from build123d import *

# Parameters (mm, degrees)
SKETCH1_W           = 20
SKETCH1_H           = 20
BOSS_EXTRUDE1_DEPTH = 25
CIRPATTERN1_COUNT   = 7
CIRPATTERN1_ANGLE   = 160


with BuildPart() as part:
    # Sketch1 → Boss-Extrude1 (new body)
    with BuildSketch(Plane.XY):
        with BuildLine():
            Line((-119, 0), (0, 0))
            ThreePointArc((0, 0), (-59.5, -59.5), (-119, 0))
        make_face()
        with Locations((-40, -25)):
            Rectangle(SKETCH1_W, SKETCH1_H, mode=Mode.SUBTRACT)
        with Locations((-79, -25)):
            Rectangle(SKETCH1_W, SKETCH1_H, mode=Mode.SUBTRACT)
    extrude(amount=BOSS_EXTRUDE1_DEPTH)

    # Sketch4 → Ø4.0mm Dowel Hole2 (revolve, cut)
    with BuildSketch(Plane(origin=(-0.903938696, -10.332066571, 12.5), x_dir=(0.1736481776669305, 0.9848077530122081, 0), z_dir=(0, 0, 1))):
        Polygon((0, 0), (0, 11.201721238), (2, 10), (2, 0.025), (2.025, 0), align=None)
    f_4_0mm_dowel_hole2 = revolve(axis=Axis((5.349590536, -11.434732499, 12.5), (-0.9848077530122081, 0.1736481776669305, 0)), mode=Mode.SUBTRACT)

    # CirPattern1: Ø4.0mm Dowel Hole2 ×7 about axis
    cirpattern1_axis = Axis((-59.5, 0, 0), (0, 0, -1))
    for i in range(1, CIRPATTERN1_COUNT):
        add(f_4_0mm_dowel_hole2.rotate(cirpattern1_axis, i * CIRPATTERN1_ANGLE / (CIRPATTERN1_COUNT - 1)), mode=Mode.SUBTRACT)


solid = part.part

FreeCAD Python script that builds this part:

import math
import FreeCAD as App
import Part
import Sketcher
Q = App.Units.Quantity


def add_polygon(sketch, points):
    """Adds a closed chain of lines whose ends are joined by coincident constraints."""
    first, n = sketch.GeometryCount, len(points)
    for a, b in zip(points, points[1:] + points[:1]):
        sketch.addGeometry(Part.LineSegment(App.Vector(*a, 0), App.Vector(*b, 0)), False)
    for i in range(n):
        sketch.addConstraint(Sketcher.Constraint("Coincident", first + i, 2, first + (i + 1) % n, 1))

doc = App.newDocument("Part")
params = doc.addObject("Spreadsheet::Sheet", "Params")
for row, (alias, value) in enumerate([
    ("sketch1_radius", "59.5 mm"),
    ("sketch1_width", "20 mm"),
    ("pad1_length", "25 mm"),
    ("groove_angle", "360 deg"),
], start=1):
    params.set(f"A{row}", alias)
    params.set(f"B{row}", "=" + value)
    params.setAlias(f"B{row}", alias)

body = doc.addObject("PartDesign::Body", "Body")

# Sketch on XY plane
sketch1 = body.newObject("Sketcher::SketchObject", "Sketch")
sketch1.AttachmentSupport = (doc.getObject("XY_Plane"), [""])
sketch1.MapMode = "FlatFace"
sketch1.addGeometry(Part.LineSegment(App.Vector(0, 0, 0), App.Vector(-119, 0, 0)), False)  # 0
sketch1.addGeometry(Part.ArcOfCircle(Part.Circle(App.Vector(-60, 0, 0), App.Vector(0, 0, 1), 60), math.radians(180), math.radians(360)), False)  # 1
add_polygon(sketch1, [(-50, -35), (-50, -15), (-30, -15), (-30, -35)])  # lines 2-5
add_polygon(sketch1, [(-89, -35), (-89, -15), (-69, -15), (-69, -35)])  # lines 6-9
sketch1.addConstraint([
    Sketcher.Constraint("Coincident", 0, 1, 1, 2),
    Sketcher.Constraint("Coincident", 1, 1, 0, 2),
    Sketcher.Constraint("Horizontal", 0),
    Sketcher.Constraint("Vertical", 2),
    Sketcher.Constraint("Horizontal", 3),
    Sketcher.Constraint("Vertical", 4),
    Sketcher.Constraint("Horizontal", 5),
    Sketcher.Constraint("Vertical", 6),
    Sketcher.Constraint("Horizontal", 7),
    Sketcher.Constraint("Vertical", 8),
    Sketcher.Constraint("Horizontal", 9),
    Sketcher.Constraint("Coincident", 0, 1, -1, 1),
    Sketcher.Constraint("PointOnObject", 1, 3, -1),
    Sketcher.Constraint("Horizontal", 3, 2, 6, 2),
    Sketcher.Constraint("Horizontal", 5, 2, 8, 2),
    Sketcher.Constraint("Equal", 5, 7),
    Sketcher.Constraint("Equal", 9, 2),
    Sketcher.Constraint("Radius", 1, Q("59.5 mm")),
    Sketcher.Constraint("DistanceX", 3, 1, 3, 2, Q("20 mm")),
    Sketcher.Constraint("DistanceX", 2, 2, -1, 1, Q("50 mm")),
    Sketcher.Constraint("DistanceY", 2, 2, -1, 1, Q("15 mm")),
    Sketcher.Constraint("DistanceX", 6, 2, -1, 1, Q("89 mm")),
])
sketch1.setExpression("Constraints[25]", "Params.sketch1_radius")
sketch1.setExpression("Constraints[26]", "Params.sketch1_width")
pad1 = body.newObject("PartDesign::Pad", "Pad")
pad1.Profile = sketch1
pad1.setExpression("Length", "Params.pad1_length")

# Sketch on XY plane
sketch2 = body.newObject("Sketcher::SketchObject", "Sketch001")
sketch2.AttachmentSupport = (doc.getObject("XY_Plane"), [""])
sketch2.MapMode = "FlatFace"
sketch2.AttachmentOffset = App.Placement(App.Vector(0, 0, 12.5), App.Rotation())
add_polygon(sketch2, [(-11.935, -8.387), (-0.904, -10.332), (-0.552, -8.338), (-0.581, -8.358), (-10.405, -6.626)])  # lines 0-4
sketch2.addGeometry(Part.LineSegment(App.Vector(-0.904, -10.332, 0), App.Vector(-11.935, -8.387, 0)), True)  # axis
sketch2.addConstraint([
    Sketcher.Constraint("Coincident", 5, 1, 0, 2),
    Sketcher.Constraint("Coincident", 5, 2, 4, 2),
    Sketcher.Constraint("Perpendicular", 0, 1),
    Sketcher.Constraint("Perpendicular", 1, 3),
    Sketcher.Constraint("Angle", 0, Q("-10 deg")),
    Sketcher.Constraint("Angle", 2, Q("-144.999999 deg")),
    Sketcher.Constraint("Angle", 4, Q("-131 deg")),
    Sketcher.Constraint("Distance", 1, Q("2.025 mm")),
    Sketcher.Constraint("Distance", 3, Q("9.975 mm")),
    Sketcher.Constraint("DistanceX", 1, 2, -1, 1, Q("0.552301 mm")),
    Sketcher.Constraint("DistanceY", 4, 2, 2, 2, Q("0.028798 mm")),
    Sketcher.Constraint("DistanceY", 1, 2, -1, 1, Q("8.337831 mm")),
])
groove = body.newObject("PartDesign::Groove", "Groove")
groove.Profile = sketch2
groove.ReferenceAxis = (sketch2, ["Axis0"])
groove.setExpression("Angle", "Params.groove_angle")
doc.recompute()

datumline = body.newObject("PartDesign::Line", "DatumLine")
datumline.Placement = App.Placement(App.Vector(-59.5, 0, 0), App.Rotation(App.Vector(0, 0, 1), App.Vector(0, 0, -1)))
polarpattern = body.newObject("PartDesign::PolarPattern", "PolarPattern")
polarpattern.Originals = [groove]
polarpattern.Axis = (datumline, [""])
polarpattern.Angle = 160
polarpattern.Occurrences = 7
body.Tip = polarpattern

doc.recompute()
